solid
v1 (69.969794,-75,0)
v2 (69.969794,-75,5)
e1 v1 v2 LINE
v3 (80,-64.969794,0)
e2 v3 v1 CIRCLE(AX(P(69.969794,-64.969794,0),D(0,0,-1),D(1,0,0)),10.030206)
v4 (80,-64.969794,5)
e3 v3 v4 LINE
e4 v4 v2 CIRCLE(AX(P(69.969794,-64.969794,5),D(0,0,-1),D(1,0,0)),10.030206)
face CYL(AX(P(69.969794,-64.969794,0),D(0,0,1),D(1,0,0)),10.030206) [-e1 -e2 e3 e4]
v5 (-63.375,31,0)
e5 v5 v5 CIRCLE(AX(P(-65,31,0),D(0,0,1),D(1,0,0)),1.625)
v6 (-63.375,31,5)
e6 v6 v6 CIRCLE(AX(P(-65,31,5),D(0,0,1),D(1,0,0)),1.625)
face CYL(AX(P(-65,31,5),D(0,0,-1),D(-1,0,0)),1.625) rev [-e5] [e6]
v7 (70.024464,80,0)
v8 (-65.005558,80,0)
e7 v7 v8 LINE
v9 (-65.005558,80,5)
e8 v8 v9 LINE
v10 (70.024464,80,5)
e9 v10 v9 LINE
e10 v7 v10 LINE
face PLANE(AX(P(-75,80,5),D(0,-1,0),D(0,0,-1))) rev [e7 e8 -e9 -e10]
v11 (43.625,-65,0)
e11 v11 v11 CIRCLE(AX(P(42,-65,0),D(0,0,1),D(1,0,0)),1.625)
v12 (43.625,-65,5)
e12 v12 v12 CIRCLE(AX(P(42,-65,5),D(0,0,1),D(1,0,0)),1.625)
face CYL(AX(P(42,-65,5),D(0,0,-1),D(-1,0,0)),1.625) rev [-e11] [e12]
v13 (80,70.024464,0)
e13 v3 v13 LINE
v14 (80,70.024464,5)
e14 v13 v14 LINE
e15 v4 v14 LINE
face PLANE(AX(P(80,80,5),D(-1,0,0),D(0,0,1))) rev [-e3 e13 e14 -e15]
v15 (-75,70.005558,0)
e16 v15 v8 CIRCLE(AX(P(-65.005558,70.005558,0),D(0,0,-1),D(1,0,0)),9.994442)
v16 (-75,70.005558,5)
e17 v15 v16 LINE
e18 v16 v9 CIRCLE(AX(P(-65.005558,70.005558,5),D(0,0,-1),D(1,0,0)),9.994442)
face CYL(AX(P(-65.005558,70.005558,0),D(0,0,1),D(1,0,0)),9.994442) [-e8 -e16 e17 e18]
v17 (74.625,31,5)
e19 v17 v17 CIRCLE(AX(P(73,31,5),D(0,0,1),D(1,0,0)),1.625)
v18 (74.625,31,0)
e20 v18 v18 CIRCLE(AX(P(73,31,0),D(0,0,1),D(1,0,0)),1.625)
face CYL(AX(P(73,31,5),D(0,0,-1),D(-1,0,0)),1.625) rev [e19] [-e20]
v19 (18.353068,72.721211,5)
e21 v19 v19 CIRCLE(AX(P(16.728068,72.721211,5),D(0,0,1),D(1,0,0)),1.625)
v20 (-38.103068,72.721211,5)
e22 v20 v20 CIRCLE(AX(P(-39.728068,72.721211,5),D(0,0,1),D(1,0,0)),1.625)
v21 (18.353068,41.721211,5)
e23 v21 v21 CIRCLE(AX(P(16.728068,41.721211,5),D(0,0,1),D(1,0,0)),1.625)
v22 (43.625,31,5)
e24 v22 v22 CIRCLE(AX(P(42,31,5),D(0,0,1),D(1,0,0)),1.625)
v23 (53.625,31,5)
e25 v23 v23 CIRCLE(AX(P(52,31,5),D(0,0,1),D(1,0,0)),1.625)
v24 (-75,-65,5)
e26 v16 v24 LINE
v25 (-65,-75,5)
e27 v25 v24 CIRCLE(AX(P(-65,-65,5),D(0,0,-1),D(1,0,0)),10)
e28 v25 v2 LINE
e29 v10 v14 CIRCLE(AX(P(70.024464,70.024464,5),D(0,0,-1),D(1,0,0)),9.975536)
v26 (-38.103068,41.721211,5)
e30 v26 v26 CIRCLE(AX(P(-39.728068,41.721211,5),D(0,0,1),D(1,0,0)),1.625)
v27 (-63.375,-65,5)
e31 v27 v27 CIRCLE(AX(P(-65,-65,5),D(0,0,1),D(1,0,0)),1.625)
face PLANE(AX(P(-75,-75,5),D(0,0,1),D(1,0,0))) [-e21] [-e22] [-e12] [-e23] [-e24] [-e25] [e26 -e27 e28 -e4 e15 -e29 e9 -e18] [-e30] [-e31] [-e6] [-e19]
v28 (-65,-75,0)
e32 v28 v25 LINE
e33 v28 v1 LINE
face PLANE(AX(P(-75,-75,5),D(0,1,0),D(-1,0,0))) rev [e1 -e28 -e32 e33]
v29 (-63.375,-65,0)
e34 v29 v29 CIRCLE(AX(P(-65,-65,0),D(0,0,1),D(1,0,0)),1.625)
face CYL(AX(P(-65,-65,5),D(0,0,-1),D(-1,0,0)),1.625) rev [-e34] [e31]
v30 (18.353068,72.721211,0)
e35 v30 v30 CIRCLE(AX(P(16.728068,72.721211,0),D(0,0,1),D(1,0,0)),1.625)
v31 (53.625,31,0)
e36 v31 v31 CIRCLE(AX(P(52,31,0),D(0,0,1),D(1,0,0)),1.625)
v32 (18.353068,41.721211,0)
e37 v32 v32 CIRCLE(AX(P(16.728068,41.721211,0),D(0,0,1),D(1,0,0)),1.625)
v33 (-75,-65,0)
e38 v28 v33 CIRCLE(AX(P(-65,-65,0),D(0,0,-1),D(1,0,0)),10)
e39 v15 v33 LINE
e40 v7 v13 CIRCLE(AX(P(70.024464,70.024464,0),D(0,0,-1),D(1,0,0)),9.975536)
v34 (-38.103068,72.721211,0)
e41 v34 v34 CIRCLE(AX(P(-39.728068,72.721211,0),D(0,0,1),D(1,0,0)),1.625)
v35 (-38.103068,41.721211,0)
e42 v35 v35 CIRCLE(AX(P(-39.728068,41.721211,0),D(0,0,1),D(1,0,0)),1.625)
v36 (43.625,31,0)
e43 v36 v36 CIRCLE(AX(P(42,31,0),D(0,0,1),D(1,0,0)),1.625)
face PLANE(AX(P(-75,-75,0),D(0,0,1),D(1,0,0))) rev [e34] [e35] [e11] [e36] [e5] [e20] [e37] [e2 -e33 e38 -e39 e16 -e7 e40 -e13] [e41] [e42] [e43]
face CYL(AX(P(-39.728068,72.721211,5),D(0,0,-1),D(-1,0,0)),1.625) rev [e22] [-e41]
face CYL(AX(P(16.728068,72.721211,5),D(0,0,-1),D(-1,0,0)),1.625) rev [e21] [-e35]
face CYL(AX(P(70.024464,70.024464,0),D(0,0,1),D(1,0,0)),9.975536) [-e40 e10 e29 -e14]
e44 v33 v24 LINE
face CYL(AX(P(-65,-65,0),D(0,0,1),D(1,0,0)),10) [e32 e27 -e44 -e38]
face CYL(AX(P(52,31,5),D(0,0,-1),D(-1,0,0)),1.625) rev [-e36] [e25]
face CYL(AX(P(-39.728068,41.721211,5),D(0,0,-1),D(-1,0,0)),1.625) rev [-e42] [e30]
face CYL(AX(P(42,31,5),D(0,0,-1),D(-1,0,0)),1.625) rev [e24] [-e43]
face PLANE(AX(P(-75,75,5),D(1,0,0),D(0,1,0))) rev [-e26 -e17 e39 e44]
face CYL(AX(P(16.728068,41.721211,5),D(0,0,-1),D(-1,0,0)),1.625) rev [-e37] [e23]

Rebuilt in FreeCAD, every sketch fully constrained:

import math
import FreeCAD as App
import Part
import Sketcher
from FreeCAD import Vector
Q = App.Units.Quantity

doc = App.newDocument("Part")
body = doc.addObject("PartDesign::Body", "Body")

# Sketch on XY plane
sketch1 = body.newObject("Sketcher::SketchObject", "Sketch")
sketch1.AttachmentSupport = (doc.getObject("XY_Plane"), [""])
sketch1.MapMode = "FlatFace"
sketch1.addGeometry([
    Part.LineSegment(Vector(-75, -75, 0), Vector(80, -75, 0)),  # 0
    Part.LineSegment(Vector(80, -75, 0), Vector(80, 80, 0)),  # 1
    Part.LineSegment(Vector(80, 80, 0), Vector(-75, 80, 0)),  # 2
    Part.LineSegment(Vector(-75, 80, 0), Vector(-75, -75, 0)),  # 3
    Part.Circle(Vector(-65, -65, 0), Vector(0, 0, 1), 1.6),  # 4
    Part.Circle(Vector(42, -65, 0), Vector(0, 0, 1), 1.6),  # 5
    Part.Circle(Vector(-65, 31, 0), Vector(0, 0, 1), 1.6),  # 6
    Part.Circle(Vector(-39.7, 41.7, 0), Vector(0, 0, 1), 1.6),  # 7
    Part.Circle(Vector(-39.7, 72.7, 0), Vector(0, 0, 1), 1.6),  # 8
    Part.Circle(Vector(42, 31, 0), Vector(0, 0, 1), 1.6),  # 9
    Part.Circle(Vector(52, 31, 0), Vector(0, 0, 1), 1.6),  # 10
    Part.Circle(Vector(73, 31, 0), Vector(0, 0, 1), 1.6),  # 11
    Part.Circle(Vector(16.7, 41.7, 0), Vector(0, 0, 1), 1.6),  # 12
    Part.Circle(Vector(16.7, 72.7, 0), Vector(0, 0, 1), 1.6),  # 13
], False)
sketch1.addConstraint([
    Sketcher.Constraint("Coincident", 0, 2, 1, 1),
    Sketcher.Constraint("Coincident", 1, 2, 2, 1),
    Sketcher.Constraint("Coincident", 2, 2, 3, 1),
    Sketcher.Constraint("Coincident", 3, 2, 0, 1),
    Sketcher.Constraint("Horizontal", 0),
    Sketcher.Constraint("Vertical", 1),
    Sketcher.Constraint("Horizontal", 2),
    Sketcher.Constraint("Vertical", 3),
    Sketcher.Constraint("Equal", 4, 5),
    Sketcher.Constraint("Equal", 5, 6),
    Sketcher.Constraint("Equal", 6, 7),
    Sketcher.Constraint("Equal", 7, 8),
    Sketcher.Constraint("Equal", 8, 9),
    Sketcher.Constraint("Equal", 9, 10),
    Sketcher.Constraint("Equal", 10, 11),
    Sketcher.Constraint("Equal", 11, 12),
    Sketcher.Constraint("Equal", 12, 13),
    Sketcher.Constraint("Horizontal", 4, 3, 5, 3),
    Sketcher.Constraint("Horizontal", 6, 3, 9, 3),
    Sketcher.Constraint("Horizontal", 9, 3, 10, 3),
    Sketcher.Constraint("Horizontal", 10, 3, 11, 3),
    Sketcher.Constraint("Horizontal", 7, 3, 12, 3),
    Sketcher.Constraint("Horizontal", 8, 3, 13, 3),
    Sketcher.Constraint("Vertical", 4, 3, 6, 3),
    Sketcher.Constraint("Vertical", 7, 3, 8, 3),
    Sketcher.Constraint("Vertical", 5, 3, 9, 3),
    Sketcher.Constraint("Vertical", 12, 3, 13, 3),
    Sketcher.Constraint("Equal", 2, 1),
    Sketcher.Constraint("Diameter", 4, Q("3.25 mm")),
    Sketcher.Constraint("DistanceX", 0, 1, 0, 2, Q("155 mm")),
    Sketcher.Constraint("DistanceX", 4, 3, -1, 1, Q("65 mm")),
    Sketcher.Constraint("DistanceY", 4, 3, -1, 1, Q("65 mm")),
    Sketcher.Constraint("DistanceX", -1, 1, 5, 3, Q("42 mm")),
    Sketcher.Constraint("DistanceY", -1, 1, 6, 3, Q("31 mm")),
    Sketcher.Constraint("DistanceX", -1, 1, 10, 3, Q("52 mm")),
    Sketcher.Constraint("DistanceX", -1, 1, 11, 3, Q("73 mm")),
    Sketcher.Constraint("DistanceX", -1, 1, 0, 2, Q("80 mm")),
    Sketcher.Constraint("DistanceY", 0, 2, -1, 1, Q("75 mm")),
    Sketcher.Constraint("DistanceY", 7, 3, 8, 3, Q("31 mm")),
    Sketcher.Constraint("DistanceY", -1, 1, 7, 3, Q("41.721211 mm")),
    Sketcher.Constraint("DistanceX", 7, 3, -1, 1, Q("39.728068 mm")),
    Sketcher.Constraint("DistanceX", -1, 1, 12, 3, Q("16.728068 mm")),
])
pad1 = body.newObject("PartDesign::Pad", "Pad")
pad1.Profile = sketch1
pad1.Length = 5

# Sketch on XY plane
sketch2 = body.newObject("Sketcher::SketchObject", "Sketch001")
sketch2.AttachmentSupport = (doc.getObject("XY_Plane"), [""])
sketch2.MapMode = "FlatFace"
sketch2.AttachmentOffset = App.Placement(Vector(0, 0, 5), App.Rotation())
sketch2.addGeometry([
    Part.LineSegment(Vector(-75, 80, 0), Vector(-75, 70, 0)),  # 0
    Part.ArcOfCircle(Part.Circle(Vector(-65, 70, 0), Vector(0, 0, 1), 10), math.radians(90), math.radians(180)),  # 1
    Part.LineSegment(Vector(-65, 80, 0), Vector(-75, 80, 0)),  # 2
    Part.LineSegment(Vector(80, 80, 0), Vector(70, 80, 0)),  # 3
    Part.ArcOfCircle(Part.Circle(Vector(70, 70, 0), Vector(0, 0, 1), 10), math.radians(0), math.radians(90)),  # 4
    Part.LineSegment(Vector(80, 70, 0), Vector(80, 80, 0)),  # 5
    Part.LineSegment(Vector(70, -75, 0), Vector(80, -75, 0)),  # 6
    Part.LineSegment(Vector(80, -75, 0), Vector(80, -65, 0)),  # 7
    Part.ArcOfCircle(Part.Circle(Vector(70, -65, 0), Vector(0, 0, 1), 10), math.radians(-90), math.radians(0)),  # 8
    Part.LineSegment(Vector(-75, -65, 0), Vector(-75, -75, 0)),  # 9
    Part.LineSegment(Vector(-75, -75, 0), Vector(-65, -75, 0)),  # 10
    Part.ArcOfCircle(Part.Circle(Vector(-65, -65, 0), Vector(0, 0, 1), 10), math.radians(180), math.radians(270)),  # 11
], False)
sketch2.addConstraint([
    Sketcher.Constraint("Tangent", 0, 2, 1, 2),
    Sketcher.Constraint("Tangent", 1, 1, 2, 1),
    Sketcher.Constraint("Coincident", 2, 2, 0, 1),
    Sketcher.Constraint("Tangent", 3, 2, 4, 2),
    Sketcher.Constraint("Tangent", 4, 1, 5, 1),
    Sketcher.Constraint("Coincident", 5, 2, 3, 1),
    Sketcher.Constraint("Coincident", 6, 2, 7, 1),
    Sketcher.Constraint("Tangent", 7, 2, 8, 2),
    Sketcher.Constraint("Tangent", 8, 1, 6, 1),
    Sketcher.Constraint("Coincident", 9, 2, 10, 1),
    Sketcher.Constraint("Tangent", 10, 2, 11, 2),
    Sketcher.Constraint("Tangent", 11, 1, 9, 1),
    Sketcher.Constraint("Vertical", 0),
    Sketcher.Constraint("Horizontal", 2),
    Sketcher.Constraint("Horizontal", 3),
    Sketcher.Constraint("Vertical", 5),
    Sketcher.Constraint("Horizontal", 6),
    Sketcher.Constraint("Vertical", 7),
    Sketcher.Constraint("Vertical", 9),
    Sketcher.Constraint("Horizontal", 10),
    Sketcher.Constraint("Horizontal", 2, 2, 3, 2),
    Sketcher.Constraint("Horizontal", 8, 1, 9, 2),
    Sketcher.Constraint("Vertical", 5, 2, 6, 2),
    Sketcher.Constraint("Vertical", 2, 2, 9, 2),
    Sketcher.Constraint("Radius", 11, Q("10 mm")),
    Sketcher.Constraint("DistanceX", 11, 3, -1, 1, Q("65 mm")),
    Sketcher.Constraint("DistanceY", 11, 3, -1, 1, Q("65 mm")),
    Sketcher.Constraint("DistanceY", -1, 1, 1, 1, Q("80 mm")),
    Sketcher.Constraint("DistanceX", -1, 1, 4, 1, Q("80 mm")),
    Sketcher.Constraint("Radius", 1, Q("9.994442 mm")),
    Sketcher.Constraint("Radius", 4, Q("9.975536 mm")),
    Sketcher.Constraint("Radius", 8, Q("10.030206 mm")),
])
pocket1 = body.newObject("PartDesign::Pocket", "Pocket")
pocket1.Profile = sketch2
pocket1.Length = 5

doc.recompute()
